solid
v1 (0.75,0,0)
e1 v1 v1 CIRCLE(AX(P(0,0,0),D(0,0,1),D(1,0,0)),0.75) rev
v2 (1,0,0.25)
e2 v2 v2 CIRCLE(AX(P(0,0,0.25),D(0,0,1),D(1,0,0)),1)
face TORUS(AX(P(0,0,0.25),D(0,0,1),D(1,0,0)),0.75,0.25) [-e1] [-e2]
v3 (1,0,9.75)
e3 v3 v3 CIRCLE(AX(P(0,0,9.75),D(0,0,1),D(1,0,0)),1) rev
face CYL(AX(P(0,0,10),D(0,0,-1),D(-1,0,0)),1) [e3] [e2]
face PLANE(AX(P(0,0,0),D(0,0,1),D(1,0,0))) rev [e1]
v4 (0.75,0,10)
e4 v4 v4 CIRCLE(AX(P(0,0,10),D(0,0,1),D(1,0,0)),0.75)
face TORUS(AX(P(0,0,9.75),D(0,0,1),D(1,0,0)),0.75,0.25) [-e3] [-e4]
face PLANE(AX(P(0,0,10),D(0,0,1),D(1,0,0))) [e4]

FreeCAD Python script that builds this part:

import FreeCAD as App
import Part
import Sketcher
from FreeCAD import Vector


def edges_at(feature, points):
    """Names of the edges that pass closest to the given points."""
    edges = feature.Shape.Edges
    near = lambda p: min(range(len(edges)), key=lambda i: edges[i].distToShape(Part.Vertex(*p))[0])
    return sorted({f"Edge{near(p) + 1}" for p in points})

doc = App.newDocument("Part")
params = doc.addObject("Spreadsheet::Sheet", "Params")
for row, (alias, value) in enumerate([
    ("sketch1_diameter", "2 mm"),
    ("pad1_length", "10 mm"),
    ("fillet_radius", "0.25 mm"),
], start=1):
    params.set(f"A{row}", alias)
    params.set(f"B{row}", "=" + value)
    params.setAlias(f"B{row}", alias)

body = doc.addObject("PartDesign::Body", "Body")

# Sketch on XY plane
sketch1 = body.newObject("Sketcher::SketchObject", "Sketch")
sketch1.AttachmentSupport = (doc.getObject("XY_Plane"), [""])
sketch1.MapMode = "FlatFace"
sketch1.addGeometry(Part.Circle(Vector(0, 0, 0), Vector(0, 0, 1), 1), False)
sketch1.addConstraint([
    Sketcher.Constraint("Coincident", 0, 3, -1, 1),
    Sketcher.Constraint("Diameter", 0, 2.0),
])
sketch1.setExpression("Constraints[1]", "Params.sketch1_diameter")
pad1 = body.newObject("PartDesign::Pad", "Pad")
pad1.Profile = sketch1
pad1.setExpression("Length", "Params.pad1_length")
doc.recompute()

fillet = body.newObject("PartDesign::Fillet", "Fillet")
fillet.Base = (pad1, edges_at(pad1, [(-1, 0, 0), (-1, 0, 10)]))
fillet.setExpression("Radius", "Params.fillet_radius")

doc.recompute()
